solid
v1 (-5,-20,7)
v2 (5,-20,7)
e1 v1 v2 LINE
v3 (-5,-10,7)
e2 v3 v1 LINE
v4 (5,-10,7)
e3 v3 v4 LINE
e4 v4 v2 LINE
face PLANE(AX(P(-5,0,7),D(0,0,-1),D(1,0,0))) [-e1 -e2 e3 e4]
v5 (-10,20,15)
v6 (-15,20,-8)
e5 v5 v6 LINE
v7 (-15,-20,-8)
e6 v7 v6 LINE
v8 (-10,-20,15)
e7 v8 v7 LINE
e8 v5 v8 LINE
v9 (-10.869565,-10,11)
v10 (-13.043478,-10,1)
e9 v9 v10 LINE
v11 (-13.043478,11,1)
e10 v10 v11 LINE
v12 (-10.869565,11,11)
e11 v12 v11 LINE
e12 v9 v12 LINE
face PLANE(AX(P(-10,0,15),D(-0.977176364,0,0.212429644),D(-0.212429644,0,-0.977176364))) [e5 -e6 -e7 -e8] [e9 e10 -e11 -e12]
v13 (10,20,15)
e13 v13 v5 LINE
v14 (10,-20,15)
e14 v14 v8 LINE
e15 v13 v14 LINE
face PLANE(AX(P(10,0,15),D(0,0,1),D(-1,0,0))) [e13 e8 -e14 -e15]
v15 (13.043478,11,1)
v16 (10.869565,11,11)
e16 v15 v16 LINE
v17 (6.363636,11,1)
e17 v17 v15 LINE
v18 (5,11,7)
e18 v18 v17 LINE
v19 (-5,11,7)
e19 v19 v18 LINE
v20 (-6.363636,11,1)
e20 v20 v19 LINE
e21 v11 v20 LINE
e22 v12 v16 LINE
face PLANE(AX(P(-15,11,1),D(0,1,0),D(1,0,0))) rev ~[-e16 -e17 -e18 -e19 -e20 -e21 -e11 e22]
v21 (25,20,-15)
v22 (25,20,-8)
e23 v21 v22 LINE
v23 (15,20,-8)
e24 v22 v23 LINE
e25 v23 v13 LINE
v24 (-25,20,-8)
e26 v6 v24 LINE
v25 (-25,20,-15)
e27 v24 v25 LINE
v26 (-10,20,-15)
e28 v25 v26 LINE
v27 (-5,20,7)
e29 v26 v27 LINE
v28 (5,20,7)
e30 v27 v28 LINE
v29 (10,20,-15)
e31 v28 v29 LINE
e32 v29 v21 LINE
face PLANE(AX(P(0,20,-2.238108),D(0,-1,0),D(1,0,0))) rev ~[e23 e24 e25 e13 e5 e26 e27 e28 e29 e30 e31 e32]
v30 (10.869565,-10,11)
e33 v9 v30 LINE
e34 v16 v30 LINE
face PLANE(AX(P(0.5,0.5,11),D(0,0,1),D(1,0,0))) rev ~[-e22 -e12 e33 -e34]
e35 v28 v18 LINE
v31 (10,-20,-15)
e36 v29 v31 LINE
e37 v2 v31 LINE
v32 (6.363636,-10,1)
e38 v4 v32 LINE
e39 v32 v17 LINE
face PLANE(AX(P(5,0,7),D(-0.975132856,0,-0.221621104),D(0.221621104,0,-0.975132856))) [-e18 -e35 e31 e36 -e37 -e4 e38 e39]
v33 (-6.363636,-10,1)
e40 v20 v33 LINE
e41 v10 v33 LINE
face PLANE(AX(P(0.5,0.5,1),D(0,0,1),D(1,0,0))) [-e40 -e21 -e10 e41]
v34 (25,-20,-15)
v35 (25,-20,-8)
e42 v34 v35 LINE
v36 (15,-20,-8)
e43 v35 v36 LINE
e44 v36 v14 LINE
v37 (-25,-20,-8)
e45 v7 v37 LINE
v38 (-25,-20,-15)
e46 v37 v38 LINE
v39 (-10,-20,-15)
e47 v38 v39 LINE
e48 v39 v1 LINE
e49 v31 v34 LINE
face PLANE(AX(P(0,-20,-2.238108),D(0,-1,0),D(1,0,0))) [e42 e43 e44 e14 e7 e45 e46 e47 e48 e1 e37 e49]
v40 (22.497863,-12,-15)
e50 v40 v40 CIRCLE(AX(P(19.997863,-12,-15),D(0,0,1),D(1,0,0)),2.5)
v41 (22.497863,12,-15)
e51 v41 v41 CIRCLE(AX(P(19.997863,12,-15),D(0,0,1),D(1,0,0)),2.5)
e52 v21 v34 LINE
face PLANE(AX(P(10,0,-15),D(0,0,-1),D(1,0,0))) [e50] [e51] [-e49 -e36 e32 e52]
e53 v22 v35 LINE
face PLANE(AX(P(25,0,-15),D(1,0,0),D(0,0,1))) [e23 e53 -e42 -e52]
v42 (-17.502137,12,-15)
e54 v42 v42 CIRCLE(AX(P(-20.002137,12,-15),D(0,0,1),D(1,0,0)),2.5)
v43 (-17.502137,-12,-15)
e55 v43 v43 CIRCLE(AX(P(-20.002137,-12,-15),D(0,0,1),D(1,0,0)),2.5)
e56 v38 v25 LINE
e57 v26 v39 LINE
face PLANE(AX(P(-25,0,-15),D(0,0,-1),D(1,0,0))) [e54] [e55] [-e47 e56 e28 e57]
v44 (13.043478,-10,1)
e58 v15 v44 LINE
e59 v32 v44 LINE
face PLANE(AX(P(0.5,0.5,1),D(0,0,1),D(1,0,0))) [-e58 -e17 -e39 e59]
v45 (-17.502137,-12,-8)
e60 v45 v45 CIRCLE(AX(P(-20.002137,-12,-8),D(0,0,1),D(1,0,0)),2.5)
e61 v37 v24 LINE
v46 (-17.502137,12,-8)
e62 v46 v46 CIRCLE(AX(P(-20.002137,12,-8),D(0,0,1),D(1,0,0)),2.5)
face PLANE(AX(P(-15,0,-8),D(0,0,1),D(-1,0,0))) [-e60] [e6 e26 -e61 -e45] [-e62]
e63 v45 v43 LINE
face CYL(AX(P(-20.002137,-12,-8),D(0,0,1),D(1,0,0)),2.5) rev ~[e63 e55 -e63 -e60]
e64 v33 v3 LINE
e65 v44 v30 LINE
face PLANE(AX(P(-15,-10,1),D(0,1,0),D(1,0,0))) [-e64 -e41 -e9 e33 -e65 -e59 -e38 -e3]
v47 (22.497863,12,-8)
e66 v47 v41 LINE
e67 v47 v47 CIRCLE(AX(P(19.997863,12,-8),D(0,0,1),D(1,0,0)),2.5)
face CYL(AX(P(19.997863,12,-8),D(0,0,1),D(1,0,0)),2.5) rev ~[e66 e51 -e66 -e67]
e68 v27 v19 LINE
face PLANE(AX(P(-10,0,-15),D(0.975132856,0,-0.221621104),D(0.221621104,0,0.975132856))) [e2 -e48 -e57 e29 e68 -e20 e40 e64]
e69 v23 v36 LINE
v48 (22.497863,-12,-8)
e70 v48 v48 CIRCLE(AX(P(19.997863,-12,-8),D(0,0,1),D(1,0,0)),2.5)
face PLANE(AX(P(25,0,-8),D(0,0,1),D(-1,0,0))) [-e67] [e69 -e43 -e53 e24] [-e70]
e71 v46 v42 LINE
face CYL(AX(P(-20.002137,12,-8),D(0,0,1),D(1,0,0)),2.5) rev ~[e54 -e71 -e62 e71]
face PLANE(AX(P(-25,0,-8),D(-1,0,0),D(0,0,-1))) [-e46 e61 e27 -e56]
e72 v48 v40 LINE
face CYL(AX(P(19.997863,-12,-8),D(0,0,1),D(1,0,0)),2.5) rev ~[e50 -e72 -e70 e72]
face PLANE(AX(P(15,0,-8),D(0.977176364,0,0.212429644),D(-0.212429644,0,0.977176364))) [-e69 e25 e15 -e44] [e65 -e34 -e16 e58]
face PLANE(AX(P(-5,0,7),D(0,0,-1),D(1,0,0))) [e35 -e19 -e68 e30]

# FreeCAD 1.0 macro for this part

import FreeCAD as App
import Part
import Sketcher

doc = App.newDocument("Part")
body = doc.addObject("PartDesign::Body", "Body")

sketch1 = body.newObject("Sketcher::SketchObject", "Sketch")
sketch1.AttachmentSupport = (doc.getObject("XY_Plane"), [""])
sketch1.MapMode = "FlatFace"
sketch1.AttachmentOffset = App.Placement(App.Vector(0, 0, 1), App.Rotation())
sketch1.addGeometry([
    Part.LineSegment(App.Vector(-15, 11, 0), App.Vector(-15, -10, 0)),
    Part.LineSegment(App.Vector(-15, -10, 0), App.Vector(16, -10, 0)),
    Part.LineSegment(App.Vector(16, -10, 0), App.Vector(16, 11, 0)),
    Part.LineSegment(App.Vector(16, 11, 0), App.Vector(-15, 11, 0)),
], False)
sketch1.addConstraint([
    Sketcher.Constraint("Coincident", 0, 2, 1, 1),
    Sketcher.Constraint("Coincident", 1, 2, 2, 1),
    Sketcher.Constraint("Coincident", 2, 2, 3, 1),
    Sketcher.Constraint("Coincident", 3, 2, 0, 1),
    Sketcher.Constraint("Vertical", 0),
    Sketcher.Constraint("Horizontal", 1),
    Sketcher.Constraint("Vertical", 2),
    Sketcher.Constraint("Horizontal", 3),
    Sketcher.Constraint("DistanceX", 1, 1, 1, 2, 31.0),
    Sketcher.Constraint("DistanceY", 0, 2, 0, 1, 21.0),
    Sketcher.Constraint("DistanceX", 0, 2, -1, 1, 15.0),
    Sketcher.Constraint("DistanceY", 0, 2, -1, 1, 10.0),
])
pad1 = body.newObject("PartDesign::Pad", "Pad")
pad1.Profile = sketch1
pad1.Length = 10
body2 = doc.addObject("PartDesign::Body", "Body001")

sketch2 = body2.newObject("Sketcher::SketchObject", "Sketch001")
sketch2.AttachmentSupport = (doc.getObject("XZ_Plane001"), [""])
sketch2.MapMode = "FlatFace"
sketch2.addGeometry([
    Part.LineSegment(App.Vector(-25, -15, 0), App.Vector(-10, -15, 0)),
    Part.LineSegment(App.Vector(-10, -15, 0), App.Vector(-5, 7, 0)),
    Part.LineSegment(App.Vector(-5, 7, 0), App.Vector(5, 7, 0)),
    Part.LineSegment(App.Vector(5, 7, 0), App.Vector(10, -15, 0)),
    Part.LineSegment(App.Vector(10, -15, 0), App.Vector(25, -15, 0)),
    Part.LineSegment(App.Vector(25, -15, 0), App.Vector(25, -8, 0)),
    Part.LineSegment(App.Vector(25, -8, 0), App.Vector(15, -8, 0)),
    Part.LineSegment(App.Vector(15, -8, 0), App.Vector(10, 15, 0)),
    Part.LineSegment(App.Vector(10, 15, 0), App.Vector(-10, 15, 0)),
    Part.LineSegment(App.Vector(-10, 15, 0), App.Vector(-15, -8, 0)),
    Part.LineSegment(App.Vector(-15, -8, 0), App.Vector(-25, -8, 0)),
    Part.LineSegment(App.Vector(-25, -8, 0), App.Vector(-25, -15, 0)),
], False)
sketch2.addConstraint([
    Sketcher.Constraint("Coincident", 0, 2, 1, 1),
    Sketcher.Constraint("Coincident", 1, 2, 2, 1),
    Sketcher.Constraint("Coincident", 2, 2, 3, 1),
    Sketcher.Constraint("Coincident", 3, 2, 4, 1),
    Sketcher.Constraint("Coincident", 4, 2, 5, 1),
    Sketcher.Constraint("Coincident", 5, 2, 6, 1),
    Sketcher.Constraint("Coincident", 6, 2, 7, 1),
    Sketcher.Constraint("Coincident", 7, 2, 8, 1),
    Sketcher.Constraint("Coincident", 8, 2, 9, 1),
    Sketcher.Constraint("Coincident", 9, 2, 10, 1),
    Sketcher.Constraint("Coincident", 10, 2, 11, 1),
    Sketcher.Constraint("Coincident", 11, 2, 0, 1),
    Sketcher.Constraint("Horizontal", 0),
    Sketcher.Constraint("Horizontal", 2),
    Sketcher.Constraint("Horizontal", 4),
    Sketcher.Constraint("Vertical", 5),
    Sketcher.Constraint("Horizontal", 6),
    Sketcher.Constraint("Horizontal", 8),
    Sketcher.Constraint("Horizontal", 10),
    Sketcher.Constraint("Vertical", 11),
    Sketcher.Constraint("Symmetric", 0, 2, 7, 2, -1, 1),
    Sketcher.Constraint("Symmetric", 3, 2, 8, 2, -1, 1),
    Sketcher.Constraint("Symmetric", 6, 2, 9, 2, -2),
    Sketcher.Constraint("Vertical", 3, 2, 7, 2),
    Sketcher.Constraint("Equal", 0, 4),
    Sketcher.Constraint("Equal", 2, 6),
    Sketcher.Constraint("Equal", 1, 3),
    Sketcher.Constraint("DistanceX", 0, 1, 0, 2, 15.0),
    Sketcher.Constraint("DistanceX", 2, 1, 2, 2, 10.0),
    Sketcher.Constraint("DistanceX", 8, 2, 8, 1, 20.0),
    Sketcher.Constraint("DistanceY", 5, 1, 5, 2, 7.0),
    Sketcher.Constraint("DistanceY", 0, 2, -1, 1, 15.0),
    Sketcher.Constraint("DistanceY", -1, 1, 1, 2, 7.0),
])
pad2 = body2.newObject("PartDesign::Pad", "Pad001")
pad2.Profile = sketch2
pad2.Length = 40
pad2.Midplane = True
doc.recompute()

boolean = body2.newObject("PartDesign::Boolean", "Boolean")
boolean.Type = "Cut"
boolean.addObjects([body])

sketch3 = body2.newObject("Sketcher::SketchObject", "Sketch002")
sketch3.AttachmentSupport = (doc.getObject("XY_Plane001"), [""])
sketch3.MapMode = "FlatFace"
sketch3.AttachmentOffset = App.Placement(App.Vector(0, 0, -8), App.Rotation())
sketch3.addGeometry([
    Part.Circle(App.Vector(-20, 12, 0), App.Vector(0, 0, 1), 2.5),
    Part.Circle(App.Vector(-20, -12, 0), App.Vector(0, 0, 1), 2.5),
    Part.Circle(App.Vector(20, 12, 0), App.Vector(0, 0, 1), 2.5),
    Part.Circle(App.Vector(20, -12, 0), App.Vector(0, 0, 1), 2.5),
], False)
sketch3.addConstraint([
    Sketcher.Constraint("Equal", 0, 1),
    Sketcher.Constraint("Equal", 1, 2),
    Sketcher.Constraint("Equal", 2, 3),
    Sketcher.Constraint("Symmetric", 0, 3, 1, 3, -1),
    Sketcher.Constraint("Symmetric", 2, 3, 3, 3, -1),
    Sketcher.Constraint("Horizontal", 0, 3, 2, 3),
    Sketcher.Constraint("Diameter", 0, 5.0),
    Sketcher.Constraint("DistanceY", -1, 1, 0, 3, 12.0),
    Sketcher.Constraint("DistanceX", 0, 3, 2, 3, 40.0),
    Sketcher.Constraint("DistanceX", 0, 3, -1, 1, 20.002137),
])
pocket1 = body2.newObject("PartDesign::Pocket", "Pocket")
pocket1.Profile = sketch3
pocket1.Type = "ThroughAll"

doc.recompute()
